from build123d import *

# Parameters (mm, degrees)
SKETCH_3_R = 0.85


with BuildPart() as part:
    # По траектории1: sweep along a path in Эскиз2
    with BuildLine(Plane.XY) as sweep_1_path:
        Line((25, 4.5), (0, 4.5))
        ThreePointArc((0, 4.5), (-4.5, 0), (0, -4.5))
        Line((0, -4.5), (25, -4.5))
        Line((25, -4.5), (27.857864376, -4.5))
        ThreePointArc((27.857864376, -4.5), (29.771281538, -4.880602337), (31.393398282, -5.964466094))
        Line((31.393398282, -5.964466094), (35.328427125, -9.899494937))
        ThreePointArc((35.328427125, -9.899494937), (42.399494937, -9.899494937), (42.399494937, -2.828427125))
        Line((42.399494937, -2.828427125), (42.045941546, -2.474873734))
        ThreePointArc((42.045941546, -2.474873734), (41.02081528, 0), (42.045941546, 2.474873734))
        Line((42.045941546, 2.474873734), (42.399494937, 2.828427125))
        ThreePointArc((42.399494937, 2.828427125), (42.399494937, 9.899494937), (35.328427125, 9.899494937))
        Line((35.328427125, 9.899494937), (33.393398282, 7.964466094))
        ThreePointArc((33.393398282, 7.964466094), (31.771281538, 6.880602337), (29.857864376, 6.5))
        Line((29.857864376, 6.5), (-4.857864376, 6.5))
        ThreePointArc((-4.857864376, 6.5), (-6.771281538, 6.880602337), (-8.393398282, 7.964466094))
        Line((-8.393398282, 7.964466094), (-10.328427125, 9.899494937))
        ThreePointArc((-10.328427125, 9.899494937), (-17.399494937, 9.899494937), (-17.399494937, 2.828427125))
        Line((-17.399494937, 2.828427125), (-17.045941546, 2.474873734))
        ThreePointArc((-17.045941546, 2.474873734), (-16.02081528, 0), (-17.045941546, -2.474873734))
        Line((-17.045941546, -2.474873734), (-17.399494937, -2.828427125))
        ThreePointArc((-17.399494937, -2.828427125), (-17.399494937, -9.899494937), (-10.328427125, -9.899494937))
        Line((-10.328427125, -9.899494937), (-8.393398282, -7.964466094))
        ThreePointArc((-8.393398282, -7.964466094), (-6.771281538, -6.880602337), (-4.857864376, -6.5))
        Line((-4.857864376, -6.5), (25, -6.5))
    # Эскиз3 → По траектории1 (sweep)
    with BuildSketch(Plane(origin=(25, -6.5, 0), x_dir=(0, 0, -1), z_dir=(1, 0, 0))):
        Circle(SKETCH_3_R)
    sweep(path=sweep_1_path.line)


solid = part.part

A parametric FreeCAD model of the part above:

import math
import FreeCAD as App
import Part
import Sketcher
from FreeCAD import Vector

doc = App.newDocument("Part")
body = doc.addObject("PartDesign::Body", "Body")

# Sketch on YZ plane
sketch1 = body.newObject("Sketcher::SketchObject", "Sketch")
sketch1.AttachmentSupport = (doc.getObject("YZ_Plane"), [""])
sketch1.MapMode = "FlatFace"
sketch1.AttachmentOffset = App.Placement(Vector(0, 0, 25), App.Rotation())
sketch1.addGeometry(Part.Circle(Vector(-6.5, 0, 0), Vector(0, 0, 1), 0.8), False)
sketch1.addConstraint([
    Sketcher.Constraint("PointOnObject", 0, 3, -1),
    Sketcher.Constraint("Diameter", 0, 1.7),
    Sketcher.Constraint("DistanceX", 0, 3, -1, 1, 6.5),
])

# Sketch on XY plane
sketch2 = body.newObject("Sketcher::SketchObject", "Sketch001")
sketch2.AttachmentSupport = (doc.getObject("XY_Plane"), [""])
sketch2.MapMode = "FlatFace"
sketch2.addGeometry([
    Part.LineSegment(Vector(25, 4.5, 0), Vector(0, 4.5, 0)),  # 0
    Part.ArcOfCircle(Part.Circle(Vector(0, 0, 0), Vector(0, 0, 1), 4.5), math.radians(90), math.radians(270)),  # 1
    Part.LineSegment(Vector(0, -4.5, 0), Vector(27.9, -4.5, 0)),  # 2
    Part.ArcOfCircle(Part.Circle(Vector(27.9, -9.5, 0), Vector(0, 0, 1), 5), math.radians(45), math.radians(90)),  # 3
    Part.LineSegment(Vector(31.4, -6, 0), Vector(35.3, -9.9, 0)),  # 4
    Part.ArcOfCircle(Part.Circle(Vector(38.9, -6.4, 0), Vector(0, 0, 1), 5), math.radians(-135), math.radians(45)),  # 5
    Part.LineSegment(Vector(42.4, -2.8, 0), Vector(42, -2.5, 0)),  # 6
    Part.ArcOfCircle(Part.Circle(Vector(44.5, 0, 0), Vector(0, 0, 1), 3.5), math.radians(135), math.radians(225)),  # 7
    Part.LineSegment(Vector(42, 2.5, 0), Vector(42.4, 2.8, 0)),  # 8
    Part.ArcOfCircle(Part.Circle(Vector(38.9, 6.4, 0), Vector(0, 0, 1), 5), math.radians(-45), math.radians(135)),  # 9
    Part.LineSegment(Vector(35.3, 9.9, 0), Vector(33.4, 8, 0)),  # 10
    Part.ArcOfCircle(Part.Circle(Vector(29.9, 11.5, 0), Vector(0, 0, 1), 5), math.radians(-90), math.radians(-45)),  # 11
    Part.LineSegment(Vector(29.9, 6.5, 0), Vector(-4.9, 6.5, 0)),  # 12
    Part.ArcOfCircle(Part.Circle(Vector(-4.9, 11.5, 0), Vector(0, 0, 1), 5), math.radians(-135), math.radians(-90)),  # 13
    Part.LineSegment(Vector(-8.4, 8, 0), Vector(-10.3, 9.9, 0)),  # 14
    Part.ArcOfCircle(Part.Circle(Vector(-13.9, 6.4, 0), Vector(0, 0, 1), 5), math.radians(45), math.radians(225)),  # 15
    Part.LineSegment(Vector(-17.4, 2.8, 0), Vector(-17, 2.5, 0)),  # 16
    Part.ArcOfCircle(Part.Circle(Vector(-19.5, 0, 0), Vector(0, 0, 1), 3.5), math.radians(-45), math.radians(45)),  # 17
    Part.LineSegment(Vector(-17, -2.5, 0), Vector(-17.4, -2.8, 0)),  # 18
    Part.ArcOfCircle(Part.Circle(Vector(-13.9, -6.4, 0), Vector(0, 0, 1), 5), math.radians(135), math.radians(315)),  # 19
    Part.LineSegment(Vector(-10.3, -9.9, 0), Vector(-8.4, -8, 0)),  # 20
    Part.ArcOfCircle(Part.Circle(Vector(-4.9, -11.5, 0), Vector(0, 0, 1), 5), math.radians(90), math.radians(135)),  # 21
    Part.LineSegment(Vector(-4.9, -6.5, 0), Vector(25, -6.5, 0)),  # 22
], False)
sketch2.addConstraint([
    Sketcher.Constraint("Tangent", 0, 2, 1, 1),
    Sketcher.Constraint("Tangent", 1, 2, 2, 1),
    Sketcher.Constraint("Tangent", 2, 2, 3, 2),
    Sketcher.Constraint("Tangent", 3, 1, 4, 1),
    Sketcher.Constraint("Tangent", 4, 2, 5, 1),
    Sketcher.Constraint("Tangent", 5, 2, 6, 1),
    Sketcher.Constraint("Tangent", 6, 2, 7, 2),
    Sketcher.Constraint("Tangent", 7, 1, 8, 1),
    Sketcher.Constraint("Tangent", 8, 2, 9, 1),
    Sketcher.Constraint("Tangent", 9, 2, 10, 1),
    Sketcher.Constraint("Tangent", 10, 2, 11, 2),
    Sketcher.Constraint("Tangent", 11, 1, 12, 1),
    Sketcher.Constraint("Tangent", 12, 2, 13, 2),
    Sketcher.Constraint("Tangent", 13, 1, 14, 1),
    Sketcher.Constraint("Tangent", 14, 2, 15, 1),
    Sketcher.Constraint("Tangent", 15, 2, 16, 1),
    Sketcher.Constraint("Tangent", 16, 2, 17, 2),
    Sketcher.Constraint("Tangent", 17, 1, 18, 1),
    Sketcher.Constraint("Tangent", 18, 2, 19, 1),
    Sketcher.Constraint("Tangent", 19, 2, 20, 1),
    Sketcher.Constraint("Tangent", 20, 2, 21, 2),
    Sketcher.Constraint("Tangent", 21, 1, 22, 1),
    Sketcher.Constraint("Horizontal", 0),
    Sketcher.Constraint("Horizontal", 2),
    Sketcher.Constraint("Horizontal", 12),
    Sketcher.Constraint("Horizontal", 22),
    Sketcher.Constraint("Coincident", 1, 3, -1, 1),
    Sketcher.Constraint("Equal", 3, 5),
    Sketcher.Constraint("Equal", 5, 9),
    Sketcher.Constraint("Equal", 9, 11),
    Sketcher.Constraint("Equal", 11, 13),
    Sketcher.Constraint("Equal", 13, 15),
    Sketcher.Constraint("Equal", 7, 17),
    Sketcher.Constraint("Equal", 15, 19),
    Sketcher.Constraint("Equal", 19, 21),
    Sketcher.Constraint("Symmetric", 5, 3, 9, 3, -1),
    Sketcher.Constraint("Symmetric", 15, 3, 19, 3, -1),
    Sketcher.Constraint("Symmetric", 13, 3, 21, 3, -1),
    Sketcher.Constraint("PointOnObject", 7, 3, -1),
    Sketcher.Constraint("PointOnObject", 17, 3, -1),
    Sketcher.Constraint("Parallel", 4, 6),
    Sketcher.Constraint("Perpendicular", 6, 8),
    Sketcher.Constraint("Parallel", 8, 10),
    Sketcher.Constraint("Perpendicular", 10, 14),
    Sketcher.Constraint("Parallel", 14, 16),
    Sketcher.Constraint("Horizontal", 9, 3, 15, 3),
    Sketcher.Constraint("Vertical", 0, 1, 22, 2),
    Sketcher.Constraint("Radius", 3, 5.0),
    Sketcher.Constraint("Radius", 1, 4.5),
    Sketcher.Constraint("Radius", 7, 3.5),
    Sketcher.Constraint("DistanceX", 0, 2, 0, 1, 25.0),
    Sketcher.Constraint("DistanceX", 3, 3, 11, 3, 2.0),
    Sketcher.Constraint("Distance", 6, 0.5),
    Sketcher.Constraint("DistanceX", 12, 2, 12, 1, 34.715729),
    Sketcher.Constraint("DistanceX", -1, 1, 3, 1, 31.393398),
])
doc.recompute()

additivepipe = body.newObject("PartDesign::AdditivePipe", "AdditivePipe")
additivepipe.Profile = sketch1
additivepipe.Spine = (sketch2, ["Edge1", "Edge2", "Edge3", "Edge4", "Edge5", "Edge6", "Edge7", "Edge8", "Edge9", "Edge10", "Edge11", "Edge12", "Edge13", "Edge14", "Edge15", "Edge16", "Edge17", "Edge18", "Edge19", "Edge20", "Edge21", "Edge22", "Edge23"])

doc.recompute()
